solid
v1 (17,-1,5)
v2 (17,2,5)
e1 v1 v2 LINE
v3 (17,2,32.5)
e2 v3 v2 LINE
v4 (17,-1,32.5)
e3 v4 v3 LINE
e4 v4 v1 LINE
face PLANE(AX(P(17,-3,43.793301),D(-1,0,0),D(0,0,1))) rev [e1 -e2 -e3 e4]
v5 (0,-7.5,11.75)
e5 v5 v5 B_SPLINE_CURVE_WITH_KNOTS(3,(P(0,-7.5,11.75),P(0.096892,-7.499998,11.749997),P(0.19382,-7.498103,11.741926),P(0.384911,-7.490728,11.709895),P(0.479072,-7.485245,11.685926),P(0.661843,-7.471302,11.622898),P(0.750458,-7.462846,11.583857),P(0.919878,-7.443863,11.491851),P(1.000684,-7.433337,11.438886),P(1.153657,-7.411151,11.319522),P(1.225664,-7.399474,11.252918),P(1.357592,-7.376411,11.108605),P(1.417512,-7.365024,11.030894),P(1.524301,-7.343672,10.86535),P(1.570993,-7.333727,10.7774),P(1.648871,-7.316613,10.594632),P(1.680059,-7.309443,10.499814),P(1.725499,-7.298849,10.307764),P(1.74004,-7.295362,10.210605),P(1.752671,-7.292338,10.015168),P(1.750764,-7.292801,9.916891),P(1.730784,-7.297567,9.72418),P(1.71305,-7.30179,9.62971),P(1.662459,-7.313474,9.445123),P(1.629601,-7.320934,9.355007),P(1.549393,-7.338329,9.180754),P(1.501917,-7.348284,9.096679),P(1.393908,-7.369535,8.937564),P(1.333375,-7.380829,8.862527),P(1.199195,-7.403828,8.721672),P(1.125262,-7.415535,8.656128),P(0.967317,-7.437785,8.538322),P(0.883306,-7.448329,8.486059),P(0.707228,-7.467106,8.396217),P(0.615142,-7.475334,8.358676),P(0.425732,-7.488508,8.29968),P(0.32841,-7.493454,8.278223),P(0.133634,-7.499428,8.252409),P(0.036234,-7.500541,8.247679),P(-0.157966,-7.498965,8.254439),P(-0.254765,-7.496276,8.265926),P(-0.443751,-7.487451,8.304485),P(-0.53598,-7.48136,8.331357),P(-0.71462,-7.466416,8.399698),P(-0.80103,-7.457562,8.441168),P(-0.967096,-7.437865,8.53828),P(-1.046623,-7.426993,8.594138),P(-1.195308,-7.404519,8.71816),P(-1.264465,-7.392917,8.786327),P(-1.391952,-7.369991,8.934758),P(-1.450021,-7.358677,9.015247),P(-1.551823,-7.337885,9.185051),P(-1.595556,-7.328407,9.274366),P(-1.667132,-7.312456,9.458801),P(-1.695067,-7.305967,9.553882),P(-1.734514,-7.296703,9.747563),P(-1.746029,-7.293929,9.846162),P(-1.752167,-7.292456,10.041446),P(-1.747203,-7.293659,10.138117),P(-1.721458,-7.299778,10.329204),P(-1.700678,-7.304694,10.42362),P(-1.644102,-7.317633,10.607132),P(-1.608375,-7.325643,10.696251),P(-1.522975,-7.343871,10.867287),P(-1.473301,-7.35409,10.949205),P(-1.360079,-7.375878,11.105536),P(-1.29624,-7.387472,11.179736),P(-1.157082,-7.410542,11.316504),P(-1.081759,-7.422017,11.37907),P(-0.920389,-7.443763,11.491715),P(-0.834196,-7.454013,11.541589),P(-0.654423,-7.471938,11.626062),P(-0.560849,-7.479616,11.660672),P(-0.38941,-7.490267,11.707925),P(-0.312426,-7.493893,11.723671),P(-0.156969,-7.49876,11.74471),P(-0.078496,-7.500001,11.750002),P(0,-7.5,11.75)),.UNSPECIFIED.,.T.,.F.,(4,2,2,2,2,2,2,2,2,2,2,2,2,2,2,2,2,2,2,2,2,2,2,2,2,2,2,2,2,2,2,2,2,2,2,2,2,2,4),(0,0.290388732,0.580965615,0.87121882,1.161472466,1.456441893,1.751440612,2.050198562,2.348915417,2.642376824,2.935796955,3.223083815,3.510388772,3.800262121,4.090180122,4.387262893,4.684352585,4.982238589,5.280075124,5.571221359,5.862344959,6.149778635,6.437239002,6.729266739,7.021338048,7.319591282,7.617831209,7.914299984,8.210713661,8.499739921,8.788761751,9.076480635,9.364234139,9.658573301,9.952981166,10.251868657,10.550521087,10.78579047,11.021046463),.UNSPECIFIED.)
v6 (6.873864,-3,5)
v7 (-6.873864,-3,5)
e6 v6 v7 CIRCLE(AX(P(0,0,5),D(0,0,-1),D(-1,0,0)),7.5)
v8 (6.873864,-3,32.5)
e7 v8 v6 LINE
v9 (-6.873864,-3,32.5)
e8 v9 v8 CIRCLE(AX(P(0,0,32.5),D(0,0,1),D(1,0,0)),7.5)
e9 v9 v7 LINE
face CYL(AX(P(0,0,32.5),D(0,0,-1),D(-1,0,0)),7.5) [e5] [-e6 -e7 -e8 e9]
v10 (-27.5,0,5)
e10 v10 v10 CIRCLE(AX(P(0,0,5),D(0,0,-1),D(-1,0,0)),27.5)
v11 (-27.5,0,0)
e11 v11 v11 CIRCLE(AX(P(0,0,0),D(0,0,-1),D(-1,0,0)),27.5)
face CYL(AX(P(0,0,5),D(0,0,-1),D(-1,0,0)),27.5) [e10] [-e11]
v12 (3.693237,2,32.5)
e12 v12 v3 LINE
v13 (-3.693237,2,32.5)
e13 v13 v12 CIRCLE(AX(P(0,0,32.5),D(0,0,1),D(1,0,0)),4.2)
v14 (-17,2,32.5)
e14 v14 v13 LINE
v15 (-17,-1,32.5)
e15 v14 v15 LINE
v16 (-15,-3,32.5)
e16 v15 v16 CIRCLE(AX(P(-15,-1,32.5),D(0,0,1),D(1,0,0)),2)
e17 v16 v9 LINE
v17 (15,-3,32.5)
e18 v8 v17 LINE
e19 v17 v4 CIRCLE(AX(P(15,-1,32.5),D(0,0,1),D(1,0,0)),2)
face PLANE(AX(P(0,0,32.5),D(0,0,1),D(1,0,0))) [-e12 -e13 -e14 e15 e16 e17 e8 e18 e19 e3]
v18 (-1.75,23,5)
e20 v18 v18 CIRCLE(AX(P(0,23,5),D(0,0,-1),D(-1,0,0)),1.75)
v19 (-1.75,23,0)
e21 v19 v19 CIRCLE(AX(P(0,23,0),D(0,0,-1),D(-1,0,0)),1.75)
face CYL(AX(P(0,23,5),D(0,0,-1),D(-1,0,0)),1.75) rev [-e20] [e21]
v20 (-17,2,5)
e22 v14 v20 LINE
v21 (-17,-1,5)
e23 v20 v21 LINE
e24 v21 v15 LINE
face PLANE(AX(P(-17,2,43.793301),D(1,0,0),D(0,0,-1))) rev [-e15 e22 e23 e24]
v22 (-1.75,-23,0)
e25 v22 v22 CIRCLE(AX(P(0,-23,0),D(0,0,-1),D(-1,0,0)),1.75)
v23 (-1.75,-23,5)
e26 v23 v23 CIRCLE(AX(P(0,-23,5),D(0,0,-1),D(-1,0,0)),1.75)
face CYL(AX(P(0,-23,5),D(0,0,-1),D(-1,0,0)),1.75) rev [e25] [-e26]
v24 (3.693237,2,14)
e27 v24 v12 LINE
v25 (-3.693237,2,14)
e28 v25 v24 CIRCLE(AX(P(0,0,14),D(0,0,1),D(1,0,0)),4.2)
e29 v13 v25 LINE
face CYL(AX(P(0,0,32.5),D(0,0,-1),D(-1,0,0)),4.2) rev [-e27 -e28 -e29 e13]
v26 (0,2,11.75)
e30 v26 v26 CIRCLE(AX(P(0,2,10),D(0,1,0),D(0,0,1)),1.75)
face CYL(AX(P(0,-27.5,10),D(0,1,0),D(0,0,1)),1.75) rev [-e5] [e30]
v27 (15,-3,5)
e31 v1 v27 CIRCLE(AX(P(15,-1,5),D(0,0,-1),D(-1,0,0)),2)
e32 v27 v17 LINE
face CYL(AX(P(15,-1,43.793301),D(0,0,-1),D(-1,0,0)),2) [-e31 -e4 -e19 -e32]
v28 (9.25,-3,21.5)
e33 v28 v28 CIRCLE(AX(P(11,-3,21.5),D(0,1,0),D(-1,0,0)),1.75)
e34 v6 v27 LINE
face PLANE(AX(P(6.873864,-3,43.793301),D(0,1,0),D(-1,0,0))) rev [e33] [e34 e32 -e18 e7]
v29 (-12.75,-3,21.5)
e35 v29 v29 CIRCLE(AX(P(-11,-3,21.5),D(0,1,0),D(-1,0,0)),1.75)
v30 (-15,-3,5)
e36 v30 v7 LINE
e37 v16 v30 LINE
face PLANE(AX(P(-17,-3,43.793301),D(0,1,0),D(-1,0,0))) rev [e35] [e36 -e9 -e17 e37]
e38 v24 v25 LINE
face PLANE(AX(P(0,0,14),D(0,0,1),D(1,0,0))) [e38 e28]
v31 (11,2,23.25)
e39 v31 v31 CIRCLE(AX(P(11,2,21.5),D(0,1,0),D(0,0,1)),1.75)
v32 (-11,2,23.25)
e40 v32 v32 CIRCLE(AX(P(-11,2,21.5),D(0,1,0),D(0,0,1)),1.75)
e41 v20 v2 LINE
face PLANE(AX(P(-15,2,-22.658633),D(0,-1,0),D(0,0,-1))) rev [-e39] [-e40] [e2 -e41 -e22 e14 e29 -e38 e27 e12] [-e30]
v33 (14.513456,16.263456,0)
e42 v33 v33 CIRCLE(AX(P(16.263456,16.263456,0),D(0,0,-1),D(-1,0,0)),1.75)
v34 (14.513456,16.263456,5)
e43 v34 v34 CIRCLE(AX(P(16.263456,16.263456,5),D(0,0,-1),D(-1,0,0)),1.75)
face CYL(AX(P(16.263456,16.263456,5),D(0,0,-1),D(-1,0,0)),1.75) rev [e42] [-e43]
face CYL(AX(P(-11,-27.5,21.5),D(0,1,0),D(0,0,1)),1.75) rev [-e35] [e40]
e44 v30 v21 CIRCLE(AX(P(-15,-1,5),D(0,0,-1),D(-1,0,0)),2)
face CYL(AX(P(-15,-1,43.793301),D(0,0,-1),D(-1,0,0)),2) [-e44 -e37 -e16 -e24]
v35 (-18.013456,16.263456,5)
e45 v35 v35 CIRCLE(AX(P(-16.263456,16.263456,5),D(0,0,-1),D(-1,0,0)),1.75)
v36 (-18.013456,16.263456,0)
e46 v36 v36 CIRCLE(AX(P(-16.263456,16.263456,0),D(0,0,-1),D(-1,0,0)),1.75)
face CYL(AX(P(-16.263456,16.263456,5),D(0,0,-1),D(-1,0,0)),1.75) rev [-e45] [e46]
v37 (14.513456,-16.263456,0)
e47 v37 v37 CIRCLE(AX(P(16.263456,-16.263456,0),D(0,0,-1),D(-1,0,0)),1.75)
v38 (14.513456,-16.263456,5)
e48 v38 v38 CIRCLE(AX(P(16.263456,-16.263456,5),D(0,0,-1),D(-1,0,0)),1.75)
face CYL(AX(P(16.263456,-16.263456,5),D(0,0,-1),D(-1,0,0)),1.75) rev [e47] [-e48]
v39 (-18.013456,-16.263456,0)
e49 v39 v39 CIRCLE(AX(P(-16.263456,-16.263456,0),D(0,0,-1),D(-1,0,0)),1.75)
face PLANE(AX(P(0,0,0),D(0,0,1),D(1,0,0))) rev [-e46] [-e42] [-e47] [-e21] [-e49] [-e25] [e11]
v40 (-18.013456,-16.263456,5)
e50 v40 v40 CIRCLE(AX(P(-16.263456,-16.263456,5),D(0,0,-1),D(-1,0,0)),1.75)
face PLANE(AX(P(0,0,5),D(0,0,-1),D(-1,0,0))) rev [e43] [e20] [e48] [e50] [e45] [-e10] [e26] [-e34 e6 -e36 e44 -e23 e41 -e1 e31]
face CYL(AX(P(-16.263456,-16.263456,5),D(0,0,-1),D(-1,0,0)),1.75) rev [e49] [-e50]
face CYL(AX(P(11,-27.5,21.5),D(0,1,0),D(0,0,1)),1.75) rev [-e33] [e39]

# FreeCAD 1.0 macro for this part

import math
import FreeCAD as App
import Part
import Sketcher
from FreeCAD import Vector


def edges_at(feature, points):
    """Names of the edges that pass closest to the given points."""
    edges = feature.Shape.Edges
    near = lambda p: min(range(len(edges)), key=lambda i: edges[i].distToShape(Part.Vertex(*p))[0])
    return sorted({f"Edge{near(p) + 1}" for p in points})

doc = App.newDocument("Part")
body = doc.addObject("PartDesign::Body", "Body")

# Sketch on XY plane
sketch1 = body.newObject("Sketcher::SketchObject", "Sketch")
sketch1.AttachmentSupport = (doc.getObject("XY_Plane"), [""])
sketch1.MapMode = "FlatFace"
sketch1.addGeometry([
    Part.Circle(Vector(0, 0, 0), Vector(0, 0, 1), 7.5),
    Part.ArcOfCircle(Part.Circle(Vector(0, 0, 0), Vector(0, 0, 1), 4.2), math.radians(130), math.radians(410)),
    Part.LineSegment(Vector(-2.7, 3.2, 0), Vector(2.7, 3.2, 0)),
], False)
sketch1.addConstraint([
    Sketcher.Constraint("Coincident", 1, 1, 2, 1),
    Sketcher.Constraint("Coincident", 2, 2, 1, 2),
    Sketcher.Constraint("Horizontal", 2),
    Sketcher.Constraint("Coincident", 0, 3, -1, 1),
    Sketcher.Constraint("Coincident", 1, 3, -1, 1),
    Sketcher.Constraint("Diameter", 0, 15.0),
    Sketcher.Constraint("Radius", 1, 4.2),
    Sketcher.Constraint("DistanceY", -1, 1, 1, 1, 3.2),
])
pad1 = body.newObject("PartDesign::Pad", "Pad")
pad1.Profile = sketch1
pad1.Length = 32.5

# Sketch on XY plane
sketch2 = body.newObject("Sketcher::SketchObject", "Sketch001")
sketch2.AttachmentSupport = (doc.getObject("XY_Plane"), [""])
sketch2.MapMode = "FlatFace"
sketch2.addGeometry([
    Part.Circle(Vector(0, 0, 0), Vector(0, 0, 1), 27.5),  # 0
    Part.Circle(Vector(16.3, -16.3, 0), Vector(0, 0, 1), 1.8),  # 1
    Part.Circle(Vector(0, -23, 0), Vector(0, 0, 1), 1.8),  # 2
    Part.Circle(Vector(-16.3, -16.3, 0), Vector(0, 0, 1), 1.8),  # 3
    Part.Circle(Vector(16.3, 16.3, 0), Vector(0, 0, 1), 1.8),  # 4
    Part.Circle(Vector(0, 0, 0), Vector(0, 0, 1), 7.5),  # 5
    Part.Circle(Vector(0, 23, 0), Vector(0, 0, 1), 1.8),  # 6
    Part.Circle(Vector(-16.3, 16.3, 0), Vector(0, 0, 1), 1.8),  # 7
], False)
sketch2.addConstraint([
    Sketcher.Constraint("Coincident", 0, 3, -1, 1),
    Sketcher.Constraint("Coincident", 5, 3, -1, 1),
    Sketcher.Constraint("Equal", 1, 2),
    Sketcher.Constraint("Equal", 2, 3),
    Sketcher.Constraint("Equal", 3, 4),
    Sketcher.Constraint("Equal", 4, 6),
    Sketcher.Constraint("Equal", 6, 7),
    Sketcher.Constraint("Symmetric", 3, 3, 4, 3, -1, 1),
    Sketcher.Constraint("Symmetric", 2, 3, 6, 3, -1, 1),
    Sketcher.Constraint("Symmetric", 1, 3, 7, 3, -1, 1),
    Sketcher.Constraint("Symmetric", 1, 3, 3, 3, -2),
    Sketcher.Constraint("PointOnObject", 2, 3, -2),
    Sketcher.Constraint("Diameter", 0, 55.0),
    Sketcher.Constraint("Diameter", 5, 15.0),
    Sketcher.Constraint("Diameter", 1, 3.5),
    Sketcher.Constraint("DistanceY", 2, 3, -1, 1, 23.0),
    Sketcher.Constraint("DistanceX", 3, 3, 1, 3, 32.526912),
    Sketcher.Constraint("DistanceY", 1, 3, 4, 3, 32.526912),
])
pad2 = body.newObject("PartDesign::Pad", "Pad001")
pad2.Profile = sketch2
pad2.Length = 5

# Sketch on XY plane
sketch3 = body.newObject("Sketcher::SketchObject", "Sketch002")
sketch3.AttachmentSupport = (doc.getObject("XY_Plane"), [""])
sketch3.MapMode = "FlatFace"
sketch3.AttachmentOffset = App.Placement(Vector(0, 0, 32.5), App.Rotation())
sketch3.addGeometry([
    Part.LineSegment(Vector(-15, 8, 0), Vector(-15, 2, 0)),
    Part.LineSegment(Vector(-15, 2, 0), Vector(12, 2, 0)),
    Part.LineSegment(Vector(12, 2, 0), Vector(12, 8, 0)),
    Part.LineSegment(Vector(12, 8, 0), Vector(-15, 8, 0)),
], False)
sketch3.addConstraint([
    Sketcher.Constraint("Coincident", 0, 2, 1, 1),
    Sketcher.Constraint("Coincident", 1, 2, 2, 1),
    Sketcher.Constraint("Coincident", 2, 2, 3, 1),
    Sketcher.Constraint("Coincident", 3, 2, 0, 1),
    Sketcher.Constraint("Vertical", 0),
    Sketcher.Constraint("Horizontal", 1),
    Sketcher.Constraint("Vertical", 2),
    Sketcher.Constraint("Horizontal", 3),
    Sketcher.Constraint("DistanceX", 1, 1, 1, 2, 27.0),
    Sketcher.Constraint("DistanceY", 0, 2, 0, 1, 6.0),
    Sketcher.Constraint("DistanceX", 0, 2, -1, 1, 15.0),
    Sketcher.Constraint("DistanceY", -1, 1, 0, 2, 2.0),
])
pocket1 = body.newObject("PartDesign::Pocket", "Pocket")
pocket1.Profile = sketch3
pocket1.Length = 27.5

# Sketch on XY plane
sketch4 = body.newObject("Sketcher::SketchObject", "Sketch003")
sketch4.AttachmentSupport = (doc.getObject("XY_Plane"), [""])
sketch4.MapMode = "FlatFace"
sketch4.addGeometry([
    Part.LineSegment(Vector(-2.7, 3.2, 0), Vector(2.7, 3.2, 0)),
    Part.ArcOfCircle(Part.Circle(Vector(0, 0, 0), Vector(0, 0, 1), 4.2), math.radians(130), math.radians(410)),
], False)
sketch4.addConstraint([
    Sketcher.Constraint("Coincident", 0, 1, 1, 1),
    Sketcher.Constraint("Coincident", 1, 2, 0, 2),
    Sketcher.Constraint("Horizontal", 0),
    Sketcher.Constraint("Coincident", 1, 3, -1, 1),
    Sketcher.Constraint("Radius", 1, 4.2),
    Sketcher.Constraint("DistanceY", -1, 1, 0, 1, 3.2),
])
pad3 = body.newObject("PartDesign::Pad", "Pad002")
pad3.Profile = sketch4
pad3.Length = 5

# Sketch on XY plane
sketch5 = body.newObject("Sketcher::SketchObject", "Sketch004")
sketch5.AttachmentSupport = (doc.getObject("XY_Plane"), [""])
sketch5.MapMode = "FlatFace"
sketch5.AttachmentOffset = App.Placement(Vector(0, 0, 5), App.Rotation())
sketch5.addGeometry([
    Part.LineSegment(Vector(3.7, 2, 0), Vector(-3.7, 2, 0)),
    Part.ArcOfCircle(Part.Circle(Vector(0, 0, 0), Vector(0, 0, 1), 4.2), math.radians(152), math.radians(388)),
], False)
sketch5.addConstraint([
    Sketcher.Constraint("Coincident", 0, 1, 1, 2),
    Sketcher.Constraint("Coincident", 1, 1, 0, 2),
    Sketcher.Constraint("Horizontal", 0),
    Sketcher.Constraint("Coincident", 1, 3, -1, 1),
    Sketcher.Constraint("Radius", 1, 4.2),
    Sketcher.Constraint("DistanceY", -1, 1, 0, 1, 2.0),
])
pad4 = body.newObject("PartDesign::Pad", "Pad003")
pad4.Profile = sketch5
pad4.Length = 9

# Sketch on XY plane
sketch6 = body.newObject("Sketcher::SketchObject", "Sketch005")
sketch6.AttachmentSupport = (doc.getObject("XY_Plane"), [""])
sketch6.MapMode = "FlatFace"
sketch6.AttachmentOffset = App.Placement(Vector(0, 0, 5), App.Rotation())
sketch6.addGeometry([
    Part.LineSegment(Vector(-7, 2, 0), Vector(-17, 2, 0)),  # 0
    Part.LineSegment(Vector(-17, 2, 0), Vector(-17, -3, 0)),  # 1
    Part.LineSegment(Vector(-17, -3, 0), Vector(-7, -3, 0)),  # 2
    Part.ArcOfCircle(Part.Circle(Vector(0, 0, 0), Vector(0, 0, 1), 7), math.radians(165), math.radians(204)),  # 3
    Part.LineSegment(Vector(7, -3, 0), Vector(17, -3, 0)),  # 4
    Part.LineSegment(Vector(17, -3, 0), Vector(17, 2, 0)),  # 5
    Part.LineSegment(Vector(17, 2, 0), Vector(7, 2, 0)),  # 6
    Part.ArcOfCircle(Part.Circle(Vector(0, 0, 0), Vector(0, 0, 1), 7), math.radians(-24), math.radians(15)),  # 7
], False)
sketch6.addConstraint([
    Sketcher.Constraint("Coincident", 0, 2, 1, 1),
    Sketcher.Constraint("Coincident", 1, 2, 2, 1),
    Sketcher.Constraint("Coincident", 2, 2, 3, 2),
    Sketcher.Constraint("Coincident", 3, 1, 0, 1),
    Sketcher.Constraint("Coincident", 4, 2, 5, 1),
    Sketcher.Constraint("Coincident", 5, 2, 6, 1),
    Sketcher.Constraint("Coincident", 6, 2, 7, 2),
    Sketcher.Constraint("Coincident", 7, 1, 4, 1),
    Sketcher.Constraint("Horizontal", 0),
    Sketcher.Constraint("Vertical", 1),
    Sketcher.Constraint("Horizontal", 2),
    Sketcher.Constraint("Horizontal", 4),
    Sketcher.Constraint("Vertical", 5),
    Sketcher.Constraint("Horizontal", 6),
    Sketcher.Constraint("Coincident", 3, 3, -1, 1),
    Sketcher.Constraint("Coincident", 7, 3, -1, 1),
    Sketcher.Constraint("Equal", 3, 7),
    Sketcher.Constraint("Symmetric", 1, 2, 4, 2, -2),
    Sketcher.Constraint("Horizontal", 3, 1, 5, 2),
    Sketcher.Constraint("Radius", 3, 7.5),
    Sketcher.Constraint("DistanceY", 1, 2, 1, 1, 5.0),
    Sketcher.Constraint("DistanceX", 0, 2, -1, 1, 17.0),
    Sketcher.Constraint("DistanceY", -1, 1, 0, 2, 2.0),
])
pad5 = body.newObject("PartDesign::Pad", "Pad004")
pad5.Profile = sketch6
pad5.Length = 27.5

# Sketch on XZ plane
sketch7 = body.newObject("Sketcher::SketchObject", "Sketch006")
sketch7.AttachmentSupport = (doc.getObject("XZ_Plane"), [""])
sketch7.MapMode = "FlatFace"
sketch7.AttachmentOffset = App.Placement(Vector(0, 0, -2), App.Rotation())
sketch7.addGeometry([
    Part.Circle(Vector(0, 10, 0), Vector(0, 0, 1), 1.8),
    Part.Circle(Vector(-11, 21.5, 0), Vector(0, 0, 1), 1.8),
    Part.Circle(Vector(11, 21.5, 0), Vector(0, 0, 1), 1.8),
], False)
sketch7.addConstraint([
    Sketcher.Constraint("Equal", 0, 1),
    Sketcher.Constraint("Equal", 1, 2),
    Sketcher.Constraint("Symmetric", 1, 3, 2, 3, -2),
    Sketcher.Constraint("PointOnObject", 0, 3, -2),
    Sketcher.Constraint("Diameter", 0, 3.5),
    Sketcher.Constraint("DistanceY", -1, 1, 0, 3, 10.0),
    Sketcher.Constraint("DistanceX", 1, 3, -1, 1, 11.0),
    Sketcher.Constraint("DistanceY", -1, 1, 1, 3, 21.5),
])
pocket2 = body.newObject("PartDesign::Pocket", "Pocket001")
pocket2.Profile = sketch7
pocket2.Type = "ThroughAll"
pocket2.Reversed = True
doc.recompute()

fillet = body.newObject("PartDesign::Fillet", "Fillet")
fillet.Base = (pocket2, edges_at(pocket2, [(-17, -3, 18.75), (17, -3, 18.75)]))
fillet.Radius = 2

doc.recompute()
